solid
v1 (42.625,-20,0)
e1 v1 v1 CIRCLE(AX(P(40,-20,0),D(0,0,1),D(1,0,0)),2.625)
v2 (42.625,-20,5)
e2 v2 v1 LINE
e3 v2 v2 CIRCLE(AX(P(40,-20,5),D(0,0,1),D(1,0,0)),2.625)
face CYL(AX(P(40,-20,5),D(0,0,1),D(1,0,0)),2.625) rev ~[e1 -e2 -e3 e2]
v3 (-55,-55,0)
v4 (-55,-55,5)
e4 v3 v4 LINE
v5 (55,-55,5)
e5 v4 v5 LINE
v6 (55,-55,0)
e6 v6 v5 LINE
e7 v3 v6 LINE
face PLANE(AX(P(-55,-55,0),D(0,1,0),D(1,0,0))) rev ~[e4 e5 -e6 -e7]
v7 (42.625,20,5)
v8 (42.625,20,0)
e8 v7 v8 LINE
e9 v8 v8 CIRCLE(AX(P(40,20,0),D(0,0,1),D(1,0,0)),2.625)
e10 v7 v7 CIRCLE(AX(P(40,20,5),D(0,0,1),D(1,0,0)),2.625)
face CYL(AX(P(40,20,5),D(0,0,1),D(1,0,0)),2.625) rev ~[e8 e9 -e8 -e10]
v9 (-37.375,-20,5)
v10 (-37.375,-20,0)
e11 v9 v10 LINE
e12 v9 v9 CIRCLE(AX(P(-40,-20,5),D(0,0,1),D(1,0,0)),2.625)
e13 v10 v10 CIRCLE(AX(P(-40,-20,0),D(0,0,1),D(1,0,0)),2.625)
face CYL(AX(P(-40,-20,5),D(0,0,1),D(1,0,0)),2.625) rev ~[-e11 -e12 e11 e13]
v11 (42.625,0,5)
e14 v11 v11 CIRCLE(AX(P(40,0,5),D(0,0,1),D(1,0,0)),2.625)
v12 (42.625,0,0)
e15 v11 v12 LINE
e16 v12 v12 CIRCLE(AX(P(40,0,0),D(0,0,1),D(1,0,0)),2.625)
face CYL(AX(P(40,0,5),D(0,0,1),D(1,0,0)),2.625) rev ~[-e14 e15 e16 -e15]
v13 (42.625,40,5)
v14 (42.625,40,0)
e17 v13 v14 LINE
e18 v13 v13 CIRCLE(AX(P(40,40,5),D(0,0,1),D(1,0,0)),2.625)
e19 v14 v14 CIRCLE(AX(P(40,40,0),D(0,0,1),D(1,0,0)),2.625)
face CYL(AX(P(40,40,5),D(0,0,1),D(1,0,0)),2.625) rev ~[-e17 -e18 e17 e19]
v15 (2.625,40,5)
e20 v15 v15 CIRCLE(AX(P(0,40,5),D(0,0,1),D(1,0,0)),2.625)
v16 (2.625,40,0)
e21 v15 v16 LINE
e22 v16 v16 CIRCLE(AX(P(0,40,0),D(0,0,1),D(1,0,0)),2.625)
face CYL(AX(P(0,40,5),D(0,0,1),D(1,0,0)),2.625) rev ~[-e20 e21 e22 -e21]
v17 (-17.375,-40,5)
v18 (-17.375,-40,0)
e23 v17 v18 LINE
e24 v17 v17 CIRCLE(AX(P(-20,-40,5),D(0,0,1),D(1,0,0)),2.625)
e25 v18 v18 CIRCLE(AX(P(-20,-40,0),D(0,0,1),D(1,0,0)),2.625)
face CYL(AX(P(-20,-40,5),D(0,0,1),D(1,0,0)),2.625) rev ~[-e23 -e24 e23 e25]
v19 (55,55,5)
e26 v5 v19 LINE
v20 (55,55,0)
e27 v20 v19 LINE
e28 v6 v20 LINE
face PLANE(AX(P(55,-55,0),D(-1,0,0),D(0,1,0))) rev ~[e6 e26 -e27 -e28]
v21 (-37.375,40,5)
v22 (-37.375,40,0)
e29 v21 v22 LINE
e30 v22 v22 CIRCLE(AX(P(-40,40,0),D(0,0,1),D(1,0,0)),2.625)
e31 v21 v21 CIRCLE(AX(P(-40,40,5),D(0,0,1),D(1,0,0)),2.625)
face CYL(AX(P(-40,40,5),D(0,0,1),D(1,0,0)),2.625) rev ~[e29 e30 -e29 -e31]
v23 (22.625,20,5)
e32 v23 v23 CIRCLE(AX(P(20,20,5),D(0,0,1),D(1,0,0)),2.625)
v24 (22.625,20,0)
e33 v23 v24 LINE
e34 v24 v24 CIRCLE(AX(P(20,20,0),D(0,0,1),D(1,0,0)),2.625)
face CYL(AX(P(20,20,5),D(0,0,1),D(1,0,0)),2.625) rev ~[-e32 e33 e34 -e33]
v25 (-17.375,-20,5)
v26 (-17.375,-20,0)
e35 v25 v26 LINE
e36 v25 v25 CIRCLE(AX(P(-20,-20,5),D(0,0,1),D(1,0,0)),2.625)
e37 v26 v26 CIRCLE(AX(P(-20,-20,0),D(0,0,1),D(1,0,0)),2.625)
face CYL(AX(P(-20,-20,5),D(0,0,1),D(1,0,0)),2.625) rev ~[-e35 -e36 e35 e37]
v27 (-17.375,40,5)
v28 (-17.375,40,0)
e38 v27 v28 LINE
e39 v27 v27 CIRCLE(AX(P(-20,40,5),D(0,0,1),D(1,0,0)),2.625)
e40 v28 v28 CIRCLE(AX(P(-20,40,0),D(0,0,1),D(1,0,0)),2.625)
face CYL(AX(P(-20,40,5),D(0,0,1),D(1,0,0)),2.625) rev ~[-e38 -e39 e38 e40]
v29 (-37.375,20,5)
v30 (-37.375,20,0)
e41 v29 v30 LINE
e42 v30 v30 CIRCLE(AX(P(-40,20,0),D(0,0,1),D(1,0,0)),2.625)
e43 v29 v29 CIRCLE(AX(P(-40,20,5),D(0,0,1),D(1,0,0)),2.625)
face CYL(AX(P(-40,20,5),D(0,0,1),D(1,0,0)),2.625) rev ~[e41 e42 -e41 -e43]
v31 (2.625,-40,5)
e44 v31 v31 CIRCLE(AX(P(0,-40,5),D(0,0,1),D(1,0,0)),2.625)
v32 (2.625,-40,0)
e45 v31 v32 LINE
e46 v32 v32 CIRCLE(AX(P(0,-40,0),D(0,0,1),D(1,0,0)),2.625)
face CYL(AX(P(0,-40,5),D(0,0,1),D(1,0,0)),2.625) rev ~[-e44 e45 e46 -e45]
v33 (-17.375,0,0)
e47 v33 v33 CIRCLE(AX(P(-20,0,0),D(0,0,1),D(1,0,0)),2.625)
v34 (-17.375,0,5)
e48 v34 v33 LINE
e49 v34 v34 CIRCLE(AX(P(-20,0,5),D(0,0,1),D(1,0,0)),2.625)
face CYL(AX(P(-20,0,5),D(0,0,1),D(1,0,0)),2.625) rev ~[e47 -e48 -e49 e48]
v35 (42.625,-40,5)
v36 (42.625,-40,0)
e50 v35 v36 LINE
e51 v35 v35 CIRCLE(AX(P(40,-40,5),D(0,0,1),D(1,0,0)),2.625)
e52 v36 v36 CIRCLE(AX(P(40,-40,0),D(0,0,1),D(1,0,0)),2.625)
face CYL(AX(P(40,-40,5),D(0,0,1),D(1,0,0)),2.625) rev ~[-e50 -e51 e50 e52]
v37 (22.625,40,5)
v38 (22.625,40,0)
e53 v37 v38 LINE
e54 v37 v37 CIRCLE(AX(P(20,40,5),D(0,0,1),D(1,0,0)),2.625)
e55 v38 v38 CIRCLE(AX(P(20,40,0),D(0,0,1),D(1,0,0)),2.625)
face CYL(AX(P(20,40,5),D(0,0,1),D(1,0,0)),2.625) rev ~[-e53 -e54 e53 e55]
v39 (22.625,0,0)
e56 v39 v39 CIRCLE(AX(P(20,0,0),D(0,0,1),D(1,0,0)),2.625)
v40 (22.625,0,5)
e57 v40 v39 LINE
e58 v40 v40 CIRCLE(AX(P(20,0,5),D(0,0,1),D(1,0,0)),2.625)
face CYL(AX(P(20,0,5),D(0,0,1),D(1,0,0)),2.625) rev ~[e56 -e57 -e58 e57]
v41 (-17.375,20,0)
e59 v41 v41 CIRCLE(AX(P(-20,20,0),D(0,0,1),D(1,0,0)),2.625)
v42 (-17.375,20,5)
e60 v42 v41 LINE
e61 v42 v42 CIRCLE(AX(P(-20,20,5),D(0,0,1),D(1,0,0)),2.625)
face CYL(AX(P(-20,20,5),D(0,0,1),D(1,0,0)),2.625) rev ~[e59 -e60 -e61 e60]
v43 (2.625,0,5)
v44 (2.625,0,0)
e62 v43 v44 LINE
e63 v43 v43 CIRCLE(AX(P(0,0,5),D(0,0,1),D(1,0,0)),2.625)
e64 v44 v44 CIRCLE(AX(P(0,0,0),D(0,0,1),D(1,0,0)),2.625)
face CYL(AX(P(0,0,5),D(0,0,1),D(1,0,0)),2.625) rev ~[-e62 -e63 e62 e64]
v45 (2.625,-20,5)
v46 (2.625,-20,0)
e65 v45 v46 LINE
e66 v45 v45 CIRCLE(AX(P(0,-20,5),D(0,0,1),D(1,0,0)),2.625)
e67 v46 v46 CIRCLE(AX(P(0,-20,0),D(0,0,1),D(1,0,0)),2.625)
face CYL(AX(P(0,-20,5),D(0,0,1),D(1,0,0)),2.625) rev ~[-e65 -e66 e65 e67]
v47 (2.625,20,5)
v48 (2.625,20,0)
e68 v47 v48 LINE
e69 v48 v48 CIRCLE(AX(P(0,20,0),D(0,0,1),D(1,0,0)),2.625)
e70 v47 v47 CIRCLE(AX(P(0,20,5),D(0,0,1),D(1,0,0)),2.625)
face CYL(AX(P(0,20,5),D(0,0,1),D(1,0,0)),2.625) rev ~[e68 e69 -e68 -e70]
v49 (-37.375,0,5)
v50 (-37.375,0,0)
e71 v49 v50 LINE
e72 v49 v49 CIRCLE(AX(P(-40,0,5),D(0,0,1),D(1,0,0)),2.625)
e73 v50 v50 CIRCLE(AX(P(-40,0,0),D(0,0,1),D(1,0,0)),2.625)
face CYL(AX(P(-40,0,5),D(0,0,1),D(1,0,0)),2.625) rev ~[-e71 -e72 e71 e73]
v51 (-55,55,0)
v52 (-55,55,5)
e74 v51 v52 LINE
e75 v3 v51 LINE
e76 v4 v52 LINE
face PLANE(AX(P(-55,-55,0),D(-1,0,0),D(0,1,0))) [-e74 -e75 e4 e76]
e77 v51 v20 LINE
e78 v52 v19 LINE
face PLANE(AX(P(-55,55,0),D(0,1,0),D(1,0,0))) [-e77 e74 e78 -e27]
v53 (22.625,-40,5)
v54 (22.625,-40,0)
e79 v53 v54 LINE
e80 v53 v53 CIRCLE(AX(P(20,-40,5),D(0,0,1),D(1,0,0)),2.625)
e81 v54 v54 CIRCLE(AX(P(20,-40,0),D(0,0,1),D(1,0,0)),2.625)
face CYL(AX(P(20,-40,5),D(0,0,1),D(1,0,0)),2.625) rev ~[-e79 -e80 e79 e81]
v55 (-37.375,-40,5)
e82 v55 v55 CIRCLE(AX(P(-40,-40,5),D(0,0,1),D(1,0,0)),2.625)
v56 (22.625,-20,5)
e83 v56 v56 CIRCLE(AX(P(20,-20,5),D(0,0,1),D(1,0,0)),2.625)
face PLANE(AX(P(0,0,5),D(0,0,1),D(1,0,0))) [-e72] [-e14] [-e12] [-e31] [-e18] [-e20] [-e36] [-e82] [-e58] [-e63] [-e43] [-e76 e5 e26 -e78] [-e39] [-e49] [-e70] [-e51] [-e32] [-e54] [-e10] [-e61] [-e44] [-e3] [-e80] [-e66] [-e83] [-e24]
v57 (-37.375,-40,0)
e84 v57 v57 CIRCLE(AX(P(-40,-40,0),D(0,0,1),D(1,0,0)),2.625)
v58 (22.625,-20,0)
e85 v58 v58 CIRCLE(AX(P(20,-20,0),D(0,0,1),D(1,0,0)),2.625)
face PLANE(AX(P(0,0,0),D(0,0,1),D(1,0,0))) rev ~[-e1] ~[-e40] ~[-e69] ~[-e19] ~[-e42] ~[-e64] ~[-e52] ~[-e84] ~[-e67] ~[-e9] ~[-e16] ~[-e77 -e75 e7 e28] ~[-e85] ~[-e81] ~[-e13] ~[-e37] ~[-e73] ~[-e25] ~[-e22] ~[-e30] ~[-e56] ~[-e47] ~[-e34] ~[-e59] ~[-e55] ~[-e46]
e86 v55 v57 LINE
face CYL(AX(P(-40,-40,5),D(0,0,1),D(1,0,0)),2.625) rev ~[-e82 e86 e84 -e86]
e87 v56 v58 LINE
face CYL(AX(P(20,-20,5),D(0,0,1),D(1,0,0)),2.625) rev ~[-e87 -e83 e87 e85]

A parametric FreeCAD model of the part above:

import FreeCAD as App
import Part
import Sketcher
from FreeCAD import Vector
Q = App.Units.Quantity

doc = App.newDocument("Part")
params = doc.addObject("Spreadsheet::Sheet", "Params")
for row, (alias, value) in enumerate([
    ("sketch1_width", "110 mm"),
    ("pad1_length", "5 mm"),
    ("sketch2_diameter", "5.25 mm"),
    ("pocket1_length", "5 mm"),
], start=1):
    params.set(f"A{row}", alias)
    params.set(f"B{row}", "=" + value)
    params.setAlias(f"B{row}", alias)

body = doc.addObject("PartDesign::Body", "Body")

sketch1 = doc.addObject("Sketcher::SketchObject", "Sketch")
body.addObject(sketch1)
sketch1.AttachmentSupport = (doc.XY_Plane, [""])
sketch1.MapMode = "FlatFace"
sketch1.addGeometry([
    Part.LineSegment(Vector(-55, 55, 0), Vector(-55, -55, 0)),
    Part.LineSegment(Vector(-55, -55, 0), Vector(55, -55, 0)),
    Part.LineSegment(Vector(55, -55, 0), Vector(55, 55, 0)),
    Part.LineSegment(Vector(55, 55, 0), Vector(-55, 55, 0)),
], False)
sketch1.addConstraint([
    Sketcher.Constraint("Coincident", 0, 2, 1, 1),
    Sketcher.Constraint("Coincident", 1, 2, 2, 1),
    Sketcher.Constraint("Coincident", 2, 2, 3, 1),
    Sketcher.Constraint("Coincident", 3, 2, 0, 1),
    Sketcher.Constraint("Vertical", 0),
    Sketcher.Constraint("Horizontal", 1),
    Sketcher.Constraint("Vertical", 2),
    Sketcher.Constraint("Horizontal", 3),
    Sketcher.Constraint("Symmetric", 0, 2, 2, 2, -1, 1),
    Sketcher.Constraint("Equal", 3, 0),
    Sketcher.Constraint("DistanceX", 1, 1, 1, 2, Q("110 mm")),
])
sketch1.setExpression("Constraints[10]", "Params.sketch1_width")
pad1 = doc.addObject("PartDesign::Pad", "Pad")
body.addObject(pad1)
pad1.Profile = sketch1
pad1.setExpression("Length", "Params.pad1_length")

sketch2 = doc.addObject("Sketcher::SketchObject", "Sketch001")
body.addObject(sketch2)
sketch2.AttachmentSupport = (doc.XY_Plane, [""])
sketch2.MapMode = "FlatFace"
sketch2.AttachmentOffset = App.Placement(Vector(0, 0, 5), App.Rotation())
sketch2.addGeometry([
    Part.Circle(Vector(0, 0, 0), Vector(0, 0, 1), 2.625),
    Part.Circle(Vector(20, 0, 0), Vector(0, 0, 1), 2.625),
    Part.Circle(Vector(40, 0, 0), Vector(0, 0, 1), 2.625),
    Part.Circle(Vector(-20, 0, 0), Vector(0, 0, 1), 2.625),
    Part.Circle(Vector(-40, 0, 0), Vector(0, 0, 1), 2.625),
    Part.Circle(Vector(-40, 20, 0), Vector(0, 0, 1), 2.625),
    Part.Circle(Vector(-40, 40, 0), Vector(0, 0, 1), 2.625),
    Part.Circle(Vector(-20, 20, 0), Vector(0, 0, 1), 2.625),
    Part.Circle(Vector(-20, 40, 0), Vector(0, 0, 1), 2.625),
    Part.Circle(Vector(0, 20, 0), Vector(0, 0, 1), 2.625),
    Part.Circle(Vector(0, 40, 0), Vector(0, 0, 1), 2.625),
    Part.Circle(Vector(20, 20, 0), Vector(0, 0, 1), 2.625),
    Part.Circle(Vector(20, 40, 0), Vector(0, 0, 1), 2.625),
    Part.Circle(Vector(40, 20, 0), Vector(0, 0, 1), 2.625),
    Part.Circle(Vector(40, 40, 0), Vector(0, 0, 1), 2.625),
    Part.Circle(Vector(0, -20, 0), Vector(0, 0, 1), 2.625),
    Part.Circle(Vector(0, -40, 0), Vector(0, 0, 1), 2.625),
    Part.Circle(Vector(20, -20, 0), Vector(0, 0, 1), 2.625),
    Part.Circle(Vector(20, -40, 0), Vector(0, 0, 1), 2.625),
    Part.Circle(Vector(40, -20, 0), Vector(0, 0, 1), 2.625),
    Part.Circle(Vector(40, -40, 0), Vector(0, 0, 1), 2.625),
    Part.Circle(Vector(-20, -40, 0), Vector(0, 0, 1), 2.625),
    Part.Circle(Vector(-20, -20, 0), Vector(0, 0, 1), 2.625),
    Part.Circle(Vector(-40, -20, 0), Vector(0, 0, 1), 2.625),
    Part.Circle(Vector(-40, -40, 0), Vector(0, 0, 1), 2.625),
], False)
sketch2.addConstraint([
    Sketcher.Constraint("Coincident", 0, 3, -1, 1),
    Sketcher.Constraint("Equal", 0, 1),
    Sketcher.Constraint("Equal", 1, 2),
    Sketcher.Constraint("Equal", 2, 3),
    Sketcher.Constraint("Equal", 3, 4),
    Sketcher.Constraint("Equal", 4, 5),
    Sketcher.Constraint("Equal", 5, 6),
    Sketcher.Constraint("Equal", 6, 7),
    Sketcher.Constraint("Equal", 7, 8),
    Sketcher.Constraint("Equal", 8, 9),
    Sketcher.Constraint("Equal", 9, 10),
    Sketcher.Constraint("Equal", 10, 11),
    Sketcher.Constraint("Equal", 11, 12),
    Sketcher.Constraint("Equal", 12, 13),
    Sketcher.Constraint("Equal", 13, 14),
    Sketcher.Constraint("Equal", 14, 15),
    Sketcher.Constraint("Equal", 15, 16),
    Sketcher.Constraint("Equal", 16, 17),
    Sketcher.Constraint("Equal", 17, 18),
    Sketcher.Constraint("Equal", 18, 19),
    Sketcher.Constraint("Equal", 19, 20),
    Sketcher.Constraint("Equal", 20, 21),
    Sketcher.Constraint("Equal", 21, 22),
    Sketcher.Constraint("Equal", 22, 23),
    Sketcher.Constraint("Equal", 23, 24),
    Sketcher.Constraint("Symmetric", 1, 3, 3, 3, -1, 1),
    Sketcher.Constraint("Symmetric", 2, 3, 4, 3, -1, 1),
    Sketcher.Constraint("Symmetric", 9, 3, 15, 3, -1, 1),
    Sketcher.Constraint("Symmetric", 10, 3, 16, 3, -1, 1),
    Sketcher.Constraint("Symmetric", 7, 3, 17, 3, -1, 1),
    Sketcher.Constraint("Symmetric", 8, 3, 18, 3, -1, 1),
    Sketcher.Constraint("Symmetric", 5, 3, 19, 3, -1, 1),
    Sketcher.Constraint("Symmetric", 6, 3, 20, 3, -1, 1),
    Sketcher.Constraint("Symmetric", 12, 3, 21, 3, -1, 1),
    Sketcher.Constraint("Symmetric", 11, 3, 22, 3, -1, 1),
    Sketcher.Constraint("Symmetric", 13, 3, 23, 3, -1, 1),
    Sketcher.Constraint("Symmetric", 14, 3, 24, 3, -1, 1),
    Sketcher.Constraint("Symmetric", 7, 3, 11, 3, -2),
    Sketcher.Constraint("Symmetric", 8, 3, 12, 3, -2),
    Sketcher.Constraint("Symmetric", 5, 3, 13, 3, -2),
    Sketcher.Constraint("Symmetric", 6, 3, 14, 3, -2),
    Sketcher.Constraint("PointOnObject", 1, 3, -1),
    Sketcher.Constraint("PointOnObject", 2, 3, -1),
    Sketcher.Constraint("PointOnObject", 9, 3, -2),
    Sketcher.Constraint("PointOnObject", 10, 3, -2),
    Sketcher.Constraint("Horizontal", 5, 3, 7, 3),
    Sketcher.Constraint("Horizontal", 6, 3, 8, 3),
    Sketcher.Constraint("Horizontal", 7, 3, 9, 3),
    Sketcher.Constraint("Horizontal", 8, 3, 10, 3),
    Sketcher.Constraint("Vertical", 4, 3, 5, 3),
    Sketcher.Constraint("Vertical", 5, 3, 6, 3),
    Sketcher.Constraint("Vertical", 3, 3, 7, 3),
    Sketcher.Constraint("Vertical", 7, 3, 8, 3),
    Sketcher.Constraint("Diameter", 0, Q("5.25 mm")),
    Sketcher.Constraint("DistanceX", -1, 1, 1, 3, Q("20 mm")),
    Sketcher.Constraint("DistanceX", -1, 1, 2, 3, Q("40 mm")),
    Sketcher.Constraint("DistanceY", -1, 1, 5, 3, Q("20 mm")),
    Sketcher.Constraint("DistanceY", -1, 1, 6, 3, Q("40 mm")),
])
sketch2.setExpression("Constraints[53]", "Params.sketch2_diameter")
pocket1 = doc.addObject("PartDesign::Pocket", "Pocket")
body.addObject(pocket1)
pocket1.Profile = sketch2
pocket1.setExpression("Length", "Params.pocket1_length")

doc.recompute()
